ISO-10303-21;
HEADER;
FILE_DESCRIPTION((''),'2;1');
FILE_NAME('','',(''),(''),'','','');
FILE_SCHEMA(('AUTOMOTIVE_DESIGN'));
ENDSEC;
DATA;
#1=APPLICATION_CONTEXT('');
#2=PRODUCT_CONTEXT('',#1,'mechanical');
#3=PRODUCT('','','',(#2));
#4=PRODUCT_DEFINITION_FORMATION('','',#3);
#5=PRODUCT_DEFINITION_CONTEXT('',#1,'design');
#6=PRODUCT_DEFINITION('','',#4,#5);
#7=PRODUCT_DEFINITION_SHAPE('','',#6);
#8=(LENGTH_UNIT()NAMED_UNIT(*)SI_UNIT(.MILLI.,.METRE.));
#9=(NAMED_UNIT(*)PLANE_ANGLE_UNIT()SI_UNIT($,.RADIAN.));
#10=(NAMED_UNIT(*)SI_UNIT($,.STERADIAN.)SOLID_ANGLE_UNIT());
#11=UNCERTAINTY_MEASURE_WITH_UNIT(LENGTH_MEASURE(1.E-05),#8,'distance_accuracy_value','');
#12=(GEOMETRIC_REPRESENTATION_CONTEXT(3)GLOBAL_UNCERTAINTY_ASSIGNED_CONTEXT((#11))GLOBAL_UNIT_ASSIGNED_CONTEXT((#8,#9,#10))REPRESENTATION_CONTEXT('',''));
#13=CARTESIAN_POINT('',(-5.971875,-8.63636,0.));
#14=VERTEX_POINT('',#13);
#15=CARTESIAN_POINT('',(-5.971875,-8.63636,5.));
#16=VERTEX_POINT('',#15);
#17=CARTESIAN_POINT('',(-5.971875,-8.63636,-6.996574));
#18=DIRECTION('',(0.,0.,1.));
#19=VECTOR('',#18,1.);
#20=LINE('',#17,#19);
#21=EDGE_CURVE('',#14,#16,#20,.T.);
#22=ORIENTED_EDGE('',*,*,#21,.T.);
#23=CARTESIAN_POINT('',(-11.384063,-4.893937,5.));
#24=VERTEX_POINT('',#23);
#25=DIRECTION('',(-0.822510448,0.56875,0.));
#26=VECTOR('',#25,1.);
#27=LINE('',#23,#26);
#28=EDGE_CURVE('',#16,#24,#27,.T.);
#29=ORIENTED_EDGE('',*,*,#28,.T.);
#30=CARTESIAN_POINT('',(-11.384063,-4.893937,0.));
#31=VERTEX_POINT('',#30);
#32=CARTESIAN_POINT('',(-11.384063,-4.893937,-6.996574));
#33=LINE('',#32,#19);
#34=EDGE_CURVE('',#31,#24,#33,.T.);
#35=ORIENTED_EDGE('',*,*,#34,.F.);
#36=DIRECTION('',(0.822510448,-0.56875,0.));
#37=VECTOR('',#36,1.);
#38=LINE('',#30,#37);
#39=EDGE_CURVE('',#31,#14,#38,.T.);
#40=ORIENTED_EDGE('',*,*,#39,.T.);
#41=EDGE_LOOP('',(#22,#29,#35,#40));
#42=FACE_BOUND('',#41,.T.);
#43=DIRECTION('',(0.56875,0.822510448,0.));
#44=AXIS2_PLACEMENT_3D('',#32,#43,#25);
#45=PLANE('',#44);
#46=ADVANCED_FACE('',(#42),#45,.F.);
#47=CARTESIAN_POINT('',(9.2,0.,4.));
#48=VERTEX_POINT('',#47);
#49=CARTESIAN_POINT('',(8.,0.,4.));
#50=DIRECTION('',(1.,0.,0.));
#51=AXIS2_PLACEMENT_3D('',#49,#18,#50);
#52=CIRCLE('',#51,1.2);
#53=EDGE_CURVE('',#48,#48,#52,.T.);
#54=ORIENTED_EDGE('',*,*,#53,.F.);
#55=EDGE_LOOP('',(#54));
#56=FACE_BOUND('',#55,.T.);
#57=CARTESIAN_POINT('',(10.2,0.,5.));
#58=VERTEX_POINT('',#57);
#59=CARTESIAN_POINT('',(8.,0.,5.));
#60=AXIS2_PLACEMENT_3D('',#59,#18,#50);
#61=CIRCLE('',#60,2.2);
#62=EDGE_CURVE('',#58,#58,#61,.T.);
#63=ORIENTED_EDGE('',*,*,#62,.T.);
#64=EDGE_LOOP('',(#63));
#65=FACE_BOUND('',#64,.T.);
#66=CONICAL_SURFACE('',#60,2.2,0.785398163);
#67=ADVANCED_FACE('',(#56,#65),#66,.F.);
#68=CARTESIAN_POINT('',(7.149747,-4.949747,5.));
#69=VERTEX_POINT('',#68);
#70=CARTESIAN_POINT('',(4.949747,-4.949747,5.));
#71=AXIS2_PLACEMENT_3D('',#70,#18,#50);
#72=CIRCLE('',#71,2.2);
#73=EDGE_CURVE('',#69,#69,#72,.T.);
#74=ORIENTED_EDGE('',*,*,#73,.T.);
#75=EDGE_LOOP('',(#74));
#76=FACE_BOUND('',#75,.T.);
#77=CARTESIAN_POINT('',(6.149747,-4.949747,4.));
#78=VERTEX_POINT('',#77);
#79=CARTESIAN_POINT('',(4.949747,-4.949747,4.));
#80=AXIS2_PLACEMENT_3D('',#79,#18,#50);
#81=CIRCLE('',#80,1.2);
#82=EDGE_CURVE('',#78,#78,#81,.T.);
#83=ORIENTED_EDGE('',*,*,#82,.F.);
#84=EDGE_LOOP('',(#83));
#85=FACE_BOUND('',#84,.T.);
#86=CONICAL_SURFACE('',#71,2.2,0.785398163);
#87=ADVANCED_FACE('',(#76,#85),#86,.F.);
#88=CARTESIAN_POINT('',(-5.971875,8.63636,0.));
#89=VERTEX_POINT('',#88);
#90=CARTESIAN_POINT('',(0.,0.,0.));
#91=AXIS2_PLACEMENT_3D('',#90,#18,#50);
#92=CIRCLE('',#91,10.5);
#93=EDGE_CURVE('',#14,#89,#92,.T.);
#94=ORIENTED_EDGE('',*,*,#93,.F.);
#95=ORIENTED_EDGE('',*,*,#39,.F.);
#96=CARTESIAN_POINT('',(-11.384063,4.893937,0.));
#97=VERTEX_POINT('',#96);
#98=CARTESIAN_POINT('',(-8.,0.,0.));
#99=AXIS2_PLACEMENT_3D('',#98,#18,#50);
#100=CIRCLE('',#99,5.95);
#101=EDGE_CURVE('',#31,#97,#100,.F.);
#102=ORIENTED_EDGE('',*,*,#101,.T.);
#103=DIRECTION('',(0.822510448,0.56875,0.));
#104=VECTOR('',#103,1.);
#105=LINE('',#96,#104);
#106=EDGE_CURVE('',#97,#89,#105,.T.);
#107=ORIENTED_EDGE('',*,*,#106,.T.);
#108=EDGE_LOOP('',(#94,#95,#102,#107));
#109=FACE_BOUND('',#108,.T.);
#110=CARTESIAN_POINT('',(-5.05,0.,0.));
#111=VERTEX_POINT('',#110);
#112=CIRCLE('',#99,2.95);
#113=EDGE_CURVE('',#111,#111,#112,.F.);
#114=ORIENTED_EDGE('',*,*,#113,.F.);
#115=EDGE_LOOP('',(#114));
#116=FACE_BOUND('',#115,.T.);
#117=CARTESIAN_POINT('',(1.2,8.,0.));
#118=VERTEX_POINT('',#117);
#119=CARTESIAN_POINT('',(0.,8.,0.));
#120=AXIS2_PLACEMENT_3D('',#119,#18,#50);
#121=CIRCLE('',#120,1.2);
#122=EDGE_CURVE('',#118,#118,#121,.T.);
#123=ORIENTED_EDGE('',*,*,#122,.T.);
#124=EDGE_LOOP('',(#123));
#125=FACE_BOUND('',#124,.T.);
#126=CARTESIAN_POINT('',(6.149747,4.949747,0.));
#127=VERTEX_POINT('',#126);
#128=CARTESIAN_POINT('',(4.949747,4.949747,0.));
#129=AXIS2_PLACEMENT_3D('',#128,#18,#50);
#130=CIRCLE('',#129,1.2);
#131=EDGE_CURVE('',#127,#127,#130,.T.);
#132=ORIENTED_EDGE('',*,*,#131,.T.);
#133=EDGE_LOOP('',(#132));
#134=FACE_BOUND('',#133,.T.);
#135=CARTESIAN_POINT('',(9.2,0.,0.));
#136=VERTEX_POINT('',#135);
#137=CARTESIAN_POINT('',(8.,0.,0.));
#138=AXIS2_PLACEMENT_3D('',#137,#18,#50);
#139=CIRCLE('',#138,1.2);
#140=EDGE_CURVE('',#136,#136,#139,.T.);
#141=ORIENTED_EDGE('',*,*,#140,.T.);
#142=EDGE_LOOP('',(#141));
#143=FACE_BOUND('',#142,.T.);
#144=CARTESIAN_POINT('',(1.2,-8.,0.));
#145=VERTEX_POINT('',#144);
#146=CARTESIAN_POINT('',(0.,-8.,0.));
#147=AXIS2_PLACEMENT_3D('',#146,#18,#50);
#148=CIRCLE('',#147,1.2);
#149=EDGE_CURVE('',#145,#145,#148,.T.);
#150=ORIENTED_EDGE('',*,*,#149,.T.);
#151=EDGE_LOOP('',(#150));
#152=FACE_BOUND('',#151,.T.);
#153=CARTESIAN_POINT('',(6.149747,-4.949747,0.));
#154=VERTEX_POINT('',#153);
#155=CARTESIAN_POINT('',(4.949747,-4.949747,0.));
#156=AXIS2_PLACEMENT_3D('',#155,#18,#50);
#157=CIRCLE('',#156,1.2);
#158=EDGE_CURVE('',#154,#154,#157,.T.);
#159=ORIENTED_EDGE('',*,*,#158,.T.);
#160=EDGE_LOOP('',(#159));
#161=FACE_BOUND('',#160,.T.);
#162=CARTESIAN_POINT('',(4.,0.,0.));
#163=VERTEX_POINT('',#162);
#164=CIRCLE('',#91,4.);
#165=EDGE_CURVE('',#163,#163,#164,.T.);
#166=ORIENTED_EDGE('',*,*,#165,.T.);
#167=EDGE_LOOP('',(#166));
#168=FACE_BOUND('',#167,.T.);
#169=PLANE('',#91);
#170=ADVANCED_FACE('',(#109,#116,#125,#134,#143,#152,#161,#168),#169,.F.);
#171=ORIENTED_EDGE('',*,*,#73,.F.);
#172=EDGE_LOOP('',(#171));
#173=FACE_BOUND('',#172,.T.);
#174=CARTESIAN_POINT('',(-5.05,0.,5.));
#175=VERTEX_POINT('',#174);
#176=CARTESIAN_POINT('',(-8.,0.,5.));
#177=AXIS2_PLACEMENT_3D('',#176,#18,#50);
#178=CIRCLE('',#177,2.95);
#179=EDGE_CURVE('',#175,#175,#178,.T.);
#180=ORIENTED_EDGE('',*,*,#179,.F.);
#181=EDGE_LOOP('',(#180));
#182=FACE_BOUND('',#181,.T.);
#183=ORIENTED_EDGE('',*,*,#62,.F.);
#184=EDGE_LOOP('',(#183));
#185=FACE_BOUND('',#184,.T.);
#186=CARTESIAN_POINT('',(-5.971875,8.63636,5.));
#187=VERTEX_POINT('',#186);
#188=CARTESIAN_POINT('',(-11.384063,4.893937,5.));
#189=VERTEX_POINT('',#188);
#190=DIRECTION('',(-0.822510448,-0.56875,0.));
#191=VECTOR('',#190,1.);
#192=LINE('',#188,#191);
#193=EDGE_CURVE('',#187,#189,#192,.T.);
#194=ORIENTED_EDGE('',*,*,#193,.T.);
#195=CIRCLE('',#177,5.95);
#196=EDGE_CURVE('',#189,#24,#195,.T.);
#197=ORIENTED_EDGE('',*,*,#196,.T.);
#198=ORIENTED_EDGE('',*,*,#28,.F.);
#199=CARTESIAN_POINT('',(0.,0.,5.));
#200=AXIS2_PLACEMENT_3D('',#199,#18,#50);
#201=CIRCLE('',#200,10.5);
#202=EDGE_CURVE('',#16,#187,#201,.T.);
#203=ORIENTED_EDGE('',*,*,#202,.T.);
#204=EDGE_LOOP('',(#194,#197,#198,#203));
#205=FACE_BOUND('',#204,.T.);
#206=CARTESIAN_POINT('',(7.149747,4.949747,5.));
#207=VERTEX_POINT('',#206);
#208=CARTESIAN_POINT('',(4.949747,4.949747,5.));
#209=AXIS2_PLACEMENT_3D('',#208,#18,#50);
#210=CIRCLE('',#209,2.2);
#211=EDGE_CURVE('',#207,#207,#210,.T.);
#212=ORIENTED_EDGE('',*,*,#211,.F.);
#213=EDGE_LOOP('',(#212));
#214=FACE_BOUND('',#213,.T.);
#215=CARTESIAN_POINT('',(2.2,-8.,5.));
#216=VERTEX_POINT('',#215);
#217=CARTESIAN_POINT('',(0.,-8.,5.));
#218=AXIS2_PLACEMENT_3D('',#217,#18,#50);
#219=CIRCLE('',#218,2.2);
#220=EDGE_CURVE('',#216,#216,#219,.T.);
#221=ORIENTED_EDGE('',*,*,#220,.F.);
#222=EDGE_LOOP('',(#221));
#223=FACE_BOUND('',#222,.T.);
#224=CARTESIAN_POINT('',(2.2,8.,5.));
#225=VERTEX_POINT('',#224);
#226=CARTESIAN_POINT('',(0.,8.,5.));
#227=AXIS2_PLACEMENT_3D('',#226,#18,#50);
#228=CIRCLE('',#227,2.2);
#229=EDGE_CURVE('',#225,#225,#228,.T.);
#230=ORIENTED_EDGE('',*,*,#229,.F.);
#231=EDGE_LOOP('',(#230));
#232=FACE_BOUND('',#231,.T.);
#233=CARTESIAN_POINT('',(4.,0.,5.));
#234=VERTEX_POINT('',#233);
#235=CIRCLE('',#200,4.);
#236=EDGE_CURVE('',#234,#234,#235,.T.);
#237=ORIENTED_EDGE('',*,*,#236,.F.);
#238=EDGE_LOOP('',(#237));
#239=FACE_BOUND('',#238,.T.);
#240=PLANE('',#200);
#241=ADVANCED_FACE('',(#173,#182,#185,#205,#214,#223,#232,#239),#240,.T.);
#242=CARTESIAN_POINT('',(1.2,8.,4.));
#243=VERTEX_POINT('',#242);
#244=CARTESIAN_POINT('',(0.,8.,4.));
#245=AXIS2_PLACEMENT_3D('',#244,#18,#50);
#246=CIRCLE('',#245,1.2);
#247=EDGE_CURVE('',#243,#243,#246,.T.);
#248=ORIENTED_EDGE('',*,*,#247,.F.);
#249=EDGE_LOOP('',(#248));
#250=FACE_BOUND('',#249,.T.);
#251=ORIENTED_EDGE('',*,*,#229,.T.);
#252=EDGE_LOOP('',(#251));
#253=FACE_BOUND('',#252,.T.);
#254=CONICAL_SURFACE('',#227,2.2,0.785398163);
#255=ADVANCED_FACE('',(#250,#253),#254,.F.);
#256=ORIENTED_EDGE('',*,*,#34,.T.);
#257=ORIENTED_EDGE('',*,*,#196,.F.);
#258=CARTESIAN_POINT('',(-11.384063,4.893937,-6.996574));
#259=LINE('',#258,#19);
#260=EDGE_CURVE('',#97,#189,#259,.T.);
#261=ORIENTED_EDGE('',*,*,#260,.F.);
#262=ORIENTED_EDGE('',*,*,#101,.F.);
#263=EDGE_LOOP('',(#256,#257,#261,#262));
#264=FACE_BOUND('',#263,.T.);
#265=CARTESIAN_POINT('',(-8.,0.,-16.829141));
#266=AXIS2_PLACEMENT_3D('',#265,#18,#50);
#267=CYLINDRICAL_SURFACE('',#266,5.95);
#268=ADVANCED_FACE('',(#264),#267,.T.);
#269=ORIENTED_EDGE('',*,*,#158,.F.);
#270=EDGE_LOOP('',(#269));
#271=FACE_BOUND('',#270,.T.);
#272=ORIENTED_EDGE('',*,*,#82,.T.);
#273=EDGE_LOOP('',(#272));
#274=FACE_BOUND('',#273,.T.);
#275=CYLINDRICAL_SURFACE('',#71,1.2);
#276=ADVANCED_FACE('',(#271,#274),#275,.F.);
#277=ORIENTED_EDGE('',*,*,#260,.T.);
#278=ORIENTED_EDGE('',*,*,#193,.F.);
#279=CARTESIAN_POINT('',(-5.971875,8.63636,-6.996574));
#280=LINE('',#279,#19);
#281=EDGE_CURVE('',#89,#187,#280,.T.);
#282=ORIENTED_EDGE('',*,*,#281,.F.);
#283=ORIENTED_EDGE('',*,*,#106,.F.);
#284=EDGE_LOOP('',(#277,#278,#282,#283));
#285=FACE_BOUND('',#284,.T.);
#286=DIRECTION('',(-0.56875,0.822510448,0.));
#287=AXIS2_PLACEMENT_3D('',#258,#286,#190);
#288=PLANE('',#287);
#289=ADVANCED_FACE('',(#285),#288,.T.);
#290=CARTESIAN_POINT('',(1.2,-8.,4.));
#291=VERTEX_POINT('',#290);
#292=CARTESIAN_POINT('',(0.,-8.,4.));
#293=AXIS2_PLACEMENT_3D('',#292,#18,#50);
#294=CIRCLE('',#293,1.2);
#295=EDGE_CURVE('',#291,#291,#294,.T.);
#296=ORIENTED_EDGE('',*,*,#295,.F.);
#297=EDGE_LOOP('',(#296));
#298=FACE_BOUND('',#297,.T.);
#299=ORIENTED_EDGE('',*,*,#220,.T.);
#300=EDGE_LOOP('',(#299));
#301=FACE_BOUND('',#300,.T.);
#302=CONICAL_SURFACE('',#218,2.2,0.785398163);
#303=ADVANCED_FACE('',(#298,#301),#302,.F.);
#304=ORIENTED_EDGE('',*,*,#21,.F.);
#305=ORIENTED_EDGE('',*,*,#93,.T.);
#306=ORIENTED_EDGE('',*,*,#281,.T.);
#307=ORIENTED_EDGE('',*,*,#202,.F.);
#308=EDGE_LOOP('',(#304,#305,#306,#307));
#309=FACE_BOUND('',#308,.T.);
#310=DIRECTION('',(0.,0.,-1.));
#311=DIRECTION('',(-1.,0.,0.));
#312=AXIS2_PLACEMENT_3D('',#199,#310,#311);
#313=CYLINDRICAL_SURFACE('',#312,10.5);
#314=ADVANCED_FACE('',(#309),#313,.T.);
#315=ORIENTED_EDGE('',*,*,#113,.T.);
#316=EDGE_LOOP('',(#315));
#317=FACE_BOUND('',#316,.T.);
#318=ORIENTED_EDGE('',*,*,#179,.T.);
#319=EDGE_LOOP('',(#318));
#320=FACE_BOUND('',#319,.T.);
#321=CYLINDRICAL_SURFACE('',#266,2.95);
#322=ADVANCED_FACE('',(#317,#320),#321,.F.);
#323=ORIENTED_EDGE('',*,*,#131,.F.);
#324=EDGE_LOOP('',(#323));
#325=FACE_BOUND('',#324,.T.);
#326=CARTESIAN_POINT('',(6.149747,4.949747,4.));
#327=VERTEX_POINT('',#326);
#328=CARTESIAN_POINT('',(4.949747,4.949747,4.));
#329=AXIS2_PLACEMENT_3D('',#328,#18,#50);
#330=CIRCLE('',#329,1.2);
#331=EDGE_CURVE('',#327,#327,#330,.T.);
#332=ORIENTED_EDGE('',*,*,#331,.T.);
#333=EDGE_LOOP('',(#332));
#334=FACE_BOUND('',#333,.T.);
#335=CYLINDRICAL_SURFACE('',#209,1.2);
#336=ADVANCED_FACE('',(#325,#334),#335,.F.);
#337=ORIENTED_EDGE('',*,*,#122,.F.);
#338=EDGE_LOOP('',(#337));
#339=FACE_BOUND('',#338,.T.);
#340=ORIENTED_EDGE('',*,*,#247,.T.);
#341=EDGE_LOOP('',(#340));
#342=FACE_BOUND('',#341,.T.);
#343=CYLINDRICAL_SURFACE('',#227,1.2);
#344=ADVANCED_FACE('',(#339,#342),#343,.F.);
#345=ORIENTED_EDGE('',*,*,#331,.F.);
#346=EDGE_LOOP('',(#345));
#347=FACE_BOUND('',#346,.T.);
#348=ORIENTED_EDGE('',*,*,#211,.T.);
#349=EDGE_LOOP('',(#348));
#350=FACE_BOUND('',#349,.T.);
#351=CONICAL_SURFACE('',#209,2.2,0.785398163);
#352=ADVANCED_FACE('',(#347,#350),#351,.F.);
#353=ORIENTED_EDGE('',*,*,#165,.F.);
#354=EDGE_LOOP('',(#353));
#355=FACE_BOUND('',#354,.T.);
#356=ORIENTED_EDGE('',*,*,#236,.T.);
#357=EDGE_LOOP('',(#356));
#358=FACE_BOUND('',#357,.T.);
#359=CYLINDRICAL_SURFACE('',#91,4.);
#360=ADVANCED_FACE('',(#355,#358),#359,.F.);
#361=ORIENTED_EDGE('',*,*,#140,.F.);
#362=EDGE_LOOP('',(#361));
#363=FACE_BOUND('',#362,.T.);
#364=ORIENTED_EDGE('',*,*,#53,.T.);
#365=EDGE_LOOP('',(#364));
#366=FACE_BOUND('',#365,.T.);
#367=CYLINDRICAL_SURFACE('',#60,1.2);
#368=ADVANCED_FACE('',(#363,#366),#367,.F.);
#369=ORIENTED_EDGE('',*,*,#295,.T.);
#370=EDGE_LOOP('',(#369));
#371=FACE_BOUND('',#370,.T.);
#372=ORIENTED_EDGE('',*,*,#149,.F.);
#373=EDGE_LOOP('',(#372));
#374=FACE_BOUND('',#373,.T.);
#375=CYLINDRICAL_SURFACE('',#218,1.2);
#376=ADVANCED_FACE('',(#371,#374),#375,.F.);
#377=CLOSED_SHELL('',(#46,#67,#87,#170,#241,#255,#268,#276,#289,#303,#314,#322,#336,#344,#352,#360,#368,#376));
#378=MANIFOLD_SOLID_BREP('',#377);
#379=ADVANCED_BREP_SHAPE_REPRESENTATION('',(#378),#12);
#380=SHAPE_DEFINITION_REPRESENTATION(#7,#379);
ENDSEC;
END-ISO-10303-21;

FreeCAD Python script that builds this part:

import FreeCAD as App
import Part
import Sketcher
Q = App.Units.Quantity


def add_polygon(sketch, points):
    """Adds a closed chain of lines whose ends are joined by coincident constraints."""
    first, n = sketch.GeometryCount, len(points)
    for a, b in zip(points, points[1:] + points[:1]):
        sketch.addGeometry(Part.LineSegment(App.Vector(*a, 0), App.Vector(*b, 0)), False)
    for i in range(n):
        sketch.addConstraint(Sketcher.Constraint("Coincident", first + i, 2, first + (i + 1) % n, 1))

doc = App.newDocument("Part")
body = doc.addObject("PartDesign::Body", "Body")

# Sketch on XY plane
sketch1 = doc.addObject("Sketcher::SketchObject", "Sketch")
body.addObject(sketch1)
sketch1.AttachmentSupport = (doc.XY_Plane, [""])
sketch1.MapMode = "FlatFace"
sketch1.addGeometry([
    Part.Circle(App.Vector(0, 0, 0), App.Vector(0, 0, 1), 10.5),  # 0
    Part.Circle(App.Vector(-4.9, -4.9, 0), App.Vector(0, 0, 1), 0.8),  # 1
    Part.Circle(App.Vector(0, -8, 0), App.Vector(0, 0, 1), 0.8),  # 2
    Part.Circle(App.Vector(4.9, -4.9, 0), App.Vector(0, 0, 1), 0.8),  # 3
    Part.Circle(App.Vector(-8, 0, 0), App.Vector(0, 0, 1), 0.8),  # 4
    Part.Circle(App.Vector(-4.9, 4.9, 0), App.Vector(0, 0, 1), 0.8),  # 5
    Part.Circle(App.Vector(0, 8, 0), App.Vector(0, 0, 1), 0.8),  # 6
    Part.Circle(App.Vector(8, 0, 0), App.Vector(0, 0, 1), 0.8),  # 7
    Part.Circle(App.Vector(4.9, 4.9, 0), App.Vector(0, 0, 1), 0.8),  # 8
], False)
sketch1.addConstraint([
    Sketcher.Constraint("Coincident", 0, 3, -1, 1),
    Sketcher.Constraint("Equal", 1, 2),
    Sketcher.Constraint("Equal", 2, 3),
    Sketcher.Constraint("Equal", 3, 4),
    Sketcher.Constraint("Equal", 4, 5),
    Sketcher.Constraint("Equal", 5, 6),
    Sketcher.Constraint("Equal", 6, 7),
    Sketcher.Constraint("Equal", 7, 8),
    Sketcher.Constraint("Symmetric", 3, 3, 5, 3, -1, 1),
    Sketcher.Constraint("Symmetric", 2, 3, 6, 3, -1, 1),
    Sketcher.Constraint("Symmetric", 4, 3, 7, 3, -1, 1),
    Sketcher.Constraint("Symmetric", 1, 3, 8, 3, -1, 1),
    Sketcher.Constraint("Symmetric", 1, 3, 3, 3, -2),
    Sketcher.Constraint("PointOnObject", 2, 3, -2),
    Sketcher.Constraint("PointOnObject", 4, 3, -1),
    Sketcher.Constraint("Diameter", 0, Q("21 mm")),
    Sketcher.Constraint("Diameter", 1, Q("1.6 mm")),
    Sketcher.Constraint("DistanceY", 2, 3, -1, 1, Q("8 mm")),
    Sketcher.Constraint("DistanceX", 4, 3, -1, 1, Q("8 mm")),
    Sketcher.Constraint("DistanceX", 1, 3, -1, 1, Q("4.949747 mm")),
    Sketcher.Constraint("DistanceY", 1, 3, -1, 1, Q("4.949747 mm")),
])
pad1 = doc.addObject("PartDesign::Pad", "Pad")
body.addObject(pad1)
pad1.Profile = sketch1
pad1.Length = 5

# Sketch on XY plane
sketch2 = doc.addObject("Sketcher::SketchObject", "Sketch001")
body.addObject(sketch2)
sketch2.AttachmentSupport = (doc.XY_Plane, [""])
sketch2.MapMode = "FlatFace"
sketch2.AttachmentOffset = App.Placement(App.Vector(0, 0, 5), App.Rotation())
sketch2.addGeometry([
    Part.Circle(App.Vector(-8, 0, 0), App.Vector(0, 0, 1), 6),
    Part.Circle(App.Vector(-8, 0, 0), App.Vector(0, 0, 1), 3),
], False)
sketch2.addConstraint([
    Sketcher.Constraint("Coincident", 1, 3, 0, 3),
    Sketcher.Constraint("PointOnObject", 0, 3, -1),
    Sketcher.Constraint("Diameter", 0, Q("11.9 mm")),
    Sketcher.Constraint("Diameter", 1, Q("5.9 mm")),
    Sketcher.Constraint("DistanceX", 0, 3, -1, 1, Q("8 mm")),
])
pad2 = doc.addObject("PartDesign::Pad", "Pad001")
body.addObject(pad2)
pad2.Profile = sketch2
pad2.Length = 5
pad2.Reversed = True

# Sketch on XY plane
sketch3 = doc.addObject("Sketcher::SketchObject", "Sketch002")
body.addObject(sketch3)
sketch3.AttachmentSupport = (doc.XY_Plane, [""])
sketch3.MapMode = "FlatFace"
sketch3.AttachmentOffset = App.Placement(App.Vector(0, 0, 5), App.Rotation())
sketch3.addGeometry([
    Part.Circle(App.Vector(4.9, 4.9, 0), App.Vector(0, 0, 1), 1.2),  # 0
    Part.Circle(App.Vector(0, 8, 0), App.Vector(0, 0, 1), 1.2),  # 1
    Part.Circle(App.Vector(0, -8, 0), App.Vector(0, 0, 1), 1.2),  # 2
    Part.Circle(App.Vector(8, 0, 0), App.Vector(0, 0, 1), 1.2),  # 3
    Part.Circle(App.Vector(4.9, -4.9, 0), App.Vector(0, 0, 1), 1.2),  # 4
], False)
sketch3.addConstraint([
    Sketcher.Constraint("Equal", 0, 1),
    Sketcher.Constraint("Equal", 1, 2),
    Sketcher.Constraint("Equal", 2, 3),
    Sketcher.Constraint("Equal", 3, 4),
    Sketcher.Constraint("Symmetric", 1, 3, 2, 3, -1, 1),
    Sketcher.Constraint("Symmetric", 0, 3, 4, 3, -1),
    Sketcher.Constraint("PointOnObject", 1, 3, -2),
    Sketcher.Constraint("PointOnObject", 3, 3, -1),
    Sketcher.Constraint("Diameter", 0, Q("2.4 mm")),
    Sketcher.Constraint("DistanceY", -1, 1, 1, 3, Q("8 mm")),
    Sketcher.Constraint("DistanceX", -1, 1, 3, 3, Q("8 mm")),
    Sketcher.Constraint("DistanceX", -1, 1, 0, 3, Q("4.949747 mm")),
    Sketcher.Constraint("DistanceY", -1, 1, 0, 3, Q("4.949747 mm")),
])
doc.recompute()
hole = doc.addObject("PartDesign::Hole", "Hole")
body.addObject(hole)
hole.Profile = sketch3
hole.ThreadType = "None"
hole.Diameter = 2.4
hole.DepthType = "ThroughAll"
hole.HoleCutType = "Countersink"
hole.HoleCutDiameter = 4.4
hole.HoleCutCountersinkAngle = 90

# Sketch on XY plane
sketch4 = doc.addObject("Sketcher::SketchObject", "Sketch003")
body.addObject(sketch4)
sketch4.AttachmentSupport = (doc.XY_Plane, [""])
sketch4.MapMode = "FlatFace"
sketch4.AttachmentOffset = App.Placement(App.Vector(0, 0, 5), App.Rotation())
sketch4.addGeometry(Part.Circle(App.Vector(-8, 0, 0), App.Vector(0, 0, 1), 3), False)
sketch4.addConstraint([
    Sketcher.Constraint("PointOnObject", 0, 3, -1),
    Sketcher.Constraint("Diameter", 0, Q("5.9 mm")),
    Sketcher.Constraint("DistanceX", 0, 3, -1, 1, Q("8 mm")),
])
pocket1 = doc.addObject("PartDesign::Pocket", "Pocket")
body.addObject(pocket1)
pocket1.Profile = sketch4
pocket1.Length = 5

# Sketch on XY plane
sketch5 = doc.addObject("Sketcher::SketchObject", "Sketch004")
body.addObject(sketch5)
sketch5.AttachmentSupport = (doc.XY_Plane, [""])
sketch5.MapMode = "FlatFace"
sketch5.AttachmentOffset = App.Placement(App.Vector(0, 0, 5), App.Rotation())
sketch5.addGeometry(Part.Circle(App.Vector(0, 0, 0), App.Vector(0, 0, 1), 4), False)
sketch5.addConstraint([
    Sketcher.Constraint("Coincident", 0, 3, -1, 1),
    Sketcher.Constraint("Diameter", 0, Q("8 mm")),
])
pocket2 = doc.addObject("PartDesign::Pocket", "Pocket001")
body.addObject(pocket2)
pocket2.Profile = sketch5
pocket2.Length = 5

# Sketch on XY plane
sketch6 = doc.addObject("Sketcher::SketchObject", "Sketch005")
body.addObject(sketch6)
sketch6.AttachmentSupport = (doc.XY_Plane, [""])
sketch6.MapMode = "FlatFace"
sketch6.AttachmentOffset = App.Placement(App.Vector(0, 0, 5), App.Rotation())
add_polygon(sketch6, [(-6, 8.6), (-11.4, 4.9), (-6.2, 4.2)])  # lines 0-2
sketch6.addConstraint([
    Sketcher.Constraint("Distance", 2, Q("4.441681 mm")),
    Sketcher.Constraint("DistanceY", -1, 1, 1, 2, Q("4.20237 mm")),
    Sketcher.Constraint("DistanceY", -1, 1, 2, 2, Q("8.63636 mm")),
    Sketcher.Constraint("DistanceX", 0, 2, 1, 2, Q("5.150919 mm")),
    Sketcher.Constraint("Distance", 0, Q("6.580084 mm")),
    Sketcher.Constraint("DistanceX", 0, 2, -1, 1, Q("11.384063 mm")),
])
pad3 = doc.addObject("PartDesign::Pad", "Pad002")
body.addObject(pad3)
pad3.Profile = sketch6
pad3.Length = 5
pad3.Reversed = True
doc.recompute()

mirrored = doc.addObject("PartDesign::Mirrored", "Mirrored")
body.addObject(mirrored)
mirrored.Originals = [pad3]
mirrored.MirrorPlane = (doc.XZ_Plane, [""])
body.Tip = mirrored

# Sketch on XY plane
sketch7 = doc.addObject("Sketcher::SketchObject", "Sketch006")
body.addObject(sketch7)
sketch7.AttachmentSupport = (doc.XY_Plane, [""])
sketch7.MapMode = "FlatFace"
sketch7.AttachmentOffset = App.Placement(App.Vector(0, 0, 5), App.Rotation())
sketch7.addGeometry([
    Part.Circle(App.Vector(-4.9, 4.9, 0), App.Vector(0, 0, 1), 0.8),
    Part.Circle(App.Vector(-4.9, -4.9, 0), App.Vector(0, 0, 1), 0.8),
], False)
sketch7.addConstraint([
    Sketcher.Constraint("Equal", 0, 1),
    Sketcher.Constraint("Symmetric", 0, 3, 1, 3, -1),
    Sketcher.Constraint("Diameter", 0, Q("1.6 mm")),
    Sketcher.Constraint("DistanceX", 0, 3, -1, 1, Q("4.949747 mm")),
    Sketcher.Constraint("DistanceY", -1, 1, 0, 3, Q("4.949747 mm")),
])
pad4 = doc.addObject("PartDesign::Pad", "Pad003")
body.addObject(pad4)
pad4.Profile = sketch7
pad4.Length = 5
pad4.Reversed = True

doc.recompute()
